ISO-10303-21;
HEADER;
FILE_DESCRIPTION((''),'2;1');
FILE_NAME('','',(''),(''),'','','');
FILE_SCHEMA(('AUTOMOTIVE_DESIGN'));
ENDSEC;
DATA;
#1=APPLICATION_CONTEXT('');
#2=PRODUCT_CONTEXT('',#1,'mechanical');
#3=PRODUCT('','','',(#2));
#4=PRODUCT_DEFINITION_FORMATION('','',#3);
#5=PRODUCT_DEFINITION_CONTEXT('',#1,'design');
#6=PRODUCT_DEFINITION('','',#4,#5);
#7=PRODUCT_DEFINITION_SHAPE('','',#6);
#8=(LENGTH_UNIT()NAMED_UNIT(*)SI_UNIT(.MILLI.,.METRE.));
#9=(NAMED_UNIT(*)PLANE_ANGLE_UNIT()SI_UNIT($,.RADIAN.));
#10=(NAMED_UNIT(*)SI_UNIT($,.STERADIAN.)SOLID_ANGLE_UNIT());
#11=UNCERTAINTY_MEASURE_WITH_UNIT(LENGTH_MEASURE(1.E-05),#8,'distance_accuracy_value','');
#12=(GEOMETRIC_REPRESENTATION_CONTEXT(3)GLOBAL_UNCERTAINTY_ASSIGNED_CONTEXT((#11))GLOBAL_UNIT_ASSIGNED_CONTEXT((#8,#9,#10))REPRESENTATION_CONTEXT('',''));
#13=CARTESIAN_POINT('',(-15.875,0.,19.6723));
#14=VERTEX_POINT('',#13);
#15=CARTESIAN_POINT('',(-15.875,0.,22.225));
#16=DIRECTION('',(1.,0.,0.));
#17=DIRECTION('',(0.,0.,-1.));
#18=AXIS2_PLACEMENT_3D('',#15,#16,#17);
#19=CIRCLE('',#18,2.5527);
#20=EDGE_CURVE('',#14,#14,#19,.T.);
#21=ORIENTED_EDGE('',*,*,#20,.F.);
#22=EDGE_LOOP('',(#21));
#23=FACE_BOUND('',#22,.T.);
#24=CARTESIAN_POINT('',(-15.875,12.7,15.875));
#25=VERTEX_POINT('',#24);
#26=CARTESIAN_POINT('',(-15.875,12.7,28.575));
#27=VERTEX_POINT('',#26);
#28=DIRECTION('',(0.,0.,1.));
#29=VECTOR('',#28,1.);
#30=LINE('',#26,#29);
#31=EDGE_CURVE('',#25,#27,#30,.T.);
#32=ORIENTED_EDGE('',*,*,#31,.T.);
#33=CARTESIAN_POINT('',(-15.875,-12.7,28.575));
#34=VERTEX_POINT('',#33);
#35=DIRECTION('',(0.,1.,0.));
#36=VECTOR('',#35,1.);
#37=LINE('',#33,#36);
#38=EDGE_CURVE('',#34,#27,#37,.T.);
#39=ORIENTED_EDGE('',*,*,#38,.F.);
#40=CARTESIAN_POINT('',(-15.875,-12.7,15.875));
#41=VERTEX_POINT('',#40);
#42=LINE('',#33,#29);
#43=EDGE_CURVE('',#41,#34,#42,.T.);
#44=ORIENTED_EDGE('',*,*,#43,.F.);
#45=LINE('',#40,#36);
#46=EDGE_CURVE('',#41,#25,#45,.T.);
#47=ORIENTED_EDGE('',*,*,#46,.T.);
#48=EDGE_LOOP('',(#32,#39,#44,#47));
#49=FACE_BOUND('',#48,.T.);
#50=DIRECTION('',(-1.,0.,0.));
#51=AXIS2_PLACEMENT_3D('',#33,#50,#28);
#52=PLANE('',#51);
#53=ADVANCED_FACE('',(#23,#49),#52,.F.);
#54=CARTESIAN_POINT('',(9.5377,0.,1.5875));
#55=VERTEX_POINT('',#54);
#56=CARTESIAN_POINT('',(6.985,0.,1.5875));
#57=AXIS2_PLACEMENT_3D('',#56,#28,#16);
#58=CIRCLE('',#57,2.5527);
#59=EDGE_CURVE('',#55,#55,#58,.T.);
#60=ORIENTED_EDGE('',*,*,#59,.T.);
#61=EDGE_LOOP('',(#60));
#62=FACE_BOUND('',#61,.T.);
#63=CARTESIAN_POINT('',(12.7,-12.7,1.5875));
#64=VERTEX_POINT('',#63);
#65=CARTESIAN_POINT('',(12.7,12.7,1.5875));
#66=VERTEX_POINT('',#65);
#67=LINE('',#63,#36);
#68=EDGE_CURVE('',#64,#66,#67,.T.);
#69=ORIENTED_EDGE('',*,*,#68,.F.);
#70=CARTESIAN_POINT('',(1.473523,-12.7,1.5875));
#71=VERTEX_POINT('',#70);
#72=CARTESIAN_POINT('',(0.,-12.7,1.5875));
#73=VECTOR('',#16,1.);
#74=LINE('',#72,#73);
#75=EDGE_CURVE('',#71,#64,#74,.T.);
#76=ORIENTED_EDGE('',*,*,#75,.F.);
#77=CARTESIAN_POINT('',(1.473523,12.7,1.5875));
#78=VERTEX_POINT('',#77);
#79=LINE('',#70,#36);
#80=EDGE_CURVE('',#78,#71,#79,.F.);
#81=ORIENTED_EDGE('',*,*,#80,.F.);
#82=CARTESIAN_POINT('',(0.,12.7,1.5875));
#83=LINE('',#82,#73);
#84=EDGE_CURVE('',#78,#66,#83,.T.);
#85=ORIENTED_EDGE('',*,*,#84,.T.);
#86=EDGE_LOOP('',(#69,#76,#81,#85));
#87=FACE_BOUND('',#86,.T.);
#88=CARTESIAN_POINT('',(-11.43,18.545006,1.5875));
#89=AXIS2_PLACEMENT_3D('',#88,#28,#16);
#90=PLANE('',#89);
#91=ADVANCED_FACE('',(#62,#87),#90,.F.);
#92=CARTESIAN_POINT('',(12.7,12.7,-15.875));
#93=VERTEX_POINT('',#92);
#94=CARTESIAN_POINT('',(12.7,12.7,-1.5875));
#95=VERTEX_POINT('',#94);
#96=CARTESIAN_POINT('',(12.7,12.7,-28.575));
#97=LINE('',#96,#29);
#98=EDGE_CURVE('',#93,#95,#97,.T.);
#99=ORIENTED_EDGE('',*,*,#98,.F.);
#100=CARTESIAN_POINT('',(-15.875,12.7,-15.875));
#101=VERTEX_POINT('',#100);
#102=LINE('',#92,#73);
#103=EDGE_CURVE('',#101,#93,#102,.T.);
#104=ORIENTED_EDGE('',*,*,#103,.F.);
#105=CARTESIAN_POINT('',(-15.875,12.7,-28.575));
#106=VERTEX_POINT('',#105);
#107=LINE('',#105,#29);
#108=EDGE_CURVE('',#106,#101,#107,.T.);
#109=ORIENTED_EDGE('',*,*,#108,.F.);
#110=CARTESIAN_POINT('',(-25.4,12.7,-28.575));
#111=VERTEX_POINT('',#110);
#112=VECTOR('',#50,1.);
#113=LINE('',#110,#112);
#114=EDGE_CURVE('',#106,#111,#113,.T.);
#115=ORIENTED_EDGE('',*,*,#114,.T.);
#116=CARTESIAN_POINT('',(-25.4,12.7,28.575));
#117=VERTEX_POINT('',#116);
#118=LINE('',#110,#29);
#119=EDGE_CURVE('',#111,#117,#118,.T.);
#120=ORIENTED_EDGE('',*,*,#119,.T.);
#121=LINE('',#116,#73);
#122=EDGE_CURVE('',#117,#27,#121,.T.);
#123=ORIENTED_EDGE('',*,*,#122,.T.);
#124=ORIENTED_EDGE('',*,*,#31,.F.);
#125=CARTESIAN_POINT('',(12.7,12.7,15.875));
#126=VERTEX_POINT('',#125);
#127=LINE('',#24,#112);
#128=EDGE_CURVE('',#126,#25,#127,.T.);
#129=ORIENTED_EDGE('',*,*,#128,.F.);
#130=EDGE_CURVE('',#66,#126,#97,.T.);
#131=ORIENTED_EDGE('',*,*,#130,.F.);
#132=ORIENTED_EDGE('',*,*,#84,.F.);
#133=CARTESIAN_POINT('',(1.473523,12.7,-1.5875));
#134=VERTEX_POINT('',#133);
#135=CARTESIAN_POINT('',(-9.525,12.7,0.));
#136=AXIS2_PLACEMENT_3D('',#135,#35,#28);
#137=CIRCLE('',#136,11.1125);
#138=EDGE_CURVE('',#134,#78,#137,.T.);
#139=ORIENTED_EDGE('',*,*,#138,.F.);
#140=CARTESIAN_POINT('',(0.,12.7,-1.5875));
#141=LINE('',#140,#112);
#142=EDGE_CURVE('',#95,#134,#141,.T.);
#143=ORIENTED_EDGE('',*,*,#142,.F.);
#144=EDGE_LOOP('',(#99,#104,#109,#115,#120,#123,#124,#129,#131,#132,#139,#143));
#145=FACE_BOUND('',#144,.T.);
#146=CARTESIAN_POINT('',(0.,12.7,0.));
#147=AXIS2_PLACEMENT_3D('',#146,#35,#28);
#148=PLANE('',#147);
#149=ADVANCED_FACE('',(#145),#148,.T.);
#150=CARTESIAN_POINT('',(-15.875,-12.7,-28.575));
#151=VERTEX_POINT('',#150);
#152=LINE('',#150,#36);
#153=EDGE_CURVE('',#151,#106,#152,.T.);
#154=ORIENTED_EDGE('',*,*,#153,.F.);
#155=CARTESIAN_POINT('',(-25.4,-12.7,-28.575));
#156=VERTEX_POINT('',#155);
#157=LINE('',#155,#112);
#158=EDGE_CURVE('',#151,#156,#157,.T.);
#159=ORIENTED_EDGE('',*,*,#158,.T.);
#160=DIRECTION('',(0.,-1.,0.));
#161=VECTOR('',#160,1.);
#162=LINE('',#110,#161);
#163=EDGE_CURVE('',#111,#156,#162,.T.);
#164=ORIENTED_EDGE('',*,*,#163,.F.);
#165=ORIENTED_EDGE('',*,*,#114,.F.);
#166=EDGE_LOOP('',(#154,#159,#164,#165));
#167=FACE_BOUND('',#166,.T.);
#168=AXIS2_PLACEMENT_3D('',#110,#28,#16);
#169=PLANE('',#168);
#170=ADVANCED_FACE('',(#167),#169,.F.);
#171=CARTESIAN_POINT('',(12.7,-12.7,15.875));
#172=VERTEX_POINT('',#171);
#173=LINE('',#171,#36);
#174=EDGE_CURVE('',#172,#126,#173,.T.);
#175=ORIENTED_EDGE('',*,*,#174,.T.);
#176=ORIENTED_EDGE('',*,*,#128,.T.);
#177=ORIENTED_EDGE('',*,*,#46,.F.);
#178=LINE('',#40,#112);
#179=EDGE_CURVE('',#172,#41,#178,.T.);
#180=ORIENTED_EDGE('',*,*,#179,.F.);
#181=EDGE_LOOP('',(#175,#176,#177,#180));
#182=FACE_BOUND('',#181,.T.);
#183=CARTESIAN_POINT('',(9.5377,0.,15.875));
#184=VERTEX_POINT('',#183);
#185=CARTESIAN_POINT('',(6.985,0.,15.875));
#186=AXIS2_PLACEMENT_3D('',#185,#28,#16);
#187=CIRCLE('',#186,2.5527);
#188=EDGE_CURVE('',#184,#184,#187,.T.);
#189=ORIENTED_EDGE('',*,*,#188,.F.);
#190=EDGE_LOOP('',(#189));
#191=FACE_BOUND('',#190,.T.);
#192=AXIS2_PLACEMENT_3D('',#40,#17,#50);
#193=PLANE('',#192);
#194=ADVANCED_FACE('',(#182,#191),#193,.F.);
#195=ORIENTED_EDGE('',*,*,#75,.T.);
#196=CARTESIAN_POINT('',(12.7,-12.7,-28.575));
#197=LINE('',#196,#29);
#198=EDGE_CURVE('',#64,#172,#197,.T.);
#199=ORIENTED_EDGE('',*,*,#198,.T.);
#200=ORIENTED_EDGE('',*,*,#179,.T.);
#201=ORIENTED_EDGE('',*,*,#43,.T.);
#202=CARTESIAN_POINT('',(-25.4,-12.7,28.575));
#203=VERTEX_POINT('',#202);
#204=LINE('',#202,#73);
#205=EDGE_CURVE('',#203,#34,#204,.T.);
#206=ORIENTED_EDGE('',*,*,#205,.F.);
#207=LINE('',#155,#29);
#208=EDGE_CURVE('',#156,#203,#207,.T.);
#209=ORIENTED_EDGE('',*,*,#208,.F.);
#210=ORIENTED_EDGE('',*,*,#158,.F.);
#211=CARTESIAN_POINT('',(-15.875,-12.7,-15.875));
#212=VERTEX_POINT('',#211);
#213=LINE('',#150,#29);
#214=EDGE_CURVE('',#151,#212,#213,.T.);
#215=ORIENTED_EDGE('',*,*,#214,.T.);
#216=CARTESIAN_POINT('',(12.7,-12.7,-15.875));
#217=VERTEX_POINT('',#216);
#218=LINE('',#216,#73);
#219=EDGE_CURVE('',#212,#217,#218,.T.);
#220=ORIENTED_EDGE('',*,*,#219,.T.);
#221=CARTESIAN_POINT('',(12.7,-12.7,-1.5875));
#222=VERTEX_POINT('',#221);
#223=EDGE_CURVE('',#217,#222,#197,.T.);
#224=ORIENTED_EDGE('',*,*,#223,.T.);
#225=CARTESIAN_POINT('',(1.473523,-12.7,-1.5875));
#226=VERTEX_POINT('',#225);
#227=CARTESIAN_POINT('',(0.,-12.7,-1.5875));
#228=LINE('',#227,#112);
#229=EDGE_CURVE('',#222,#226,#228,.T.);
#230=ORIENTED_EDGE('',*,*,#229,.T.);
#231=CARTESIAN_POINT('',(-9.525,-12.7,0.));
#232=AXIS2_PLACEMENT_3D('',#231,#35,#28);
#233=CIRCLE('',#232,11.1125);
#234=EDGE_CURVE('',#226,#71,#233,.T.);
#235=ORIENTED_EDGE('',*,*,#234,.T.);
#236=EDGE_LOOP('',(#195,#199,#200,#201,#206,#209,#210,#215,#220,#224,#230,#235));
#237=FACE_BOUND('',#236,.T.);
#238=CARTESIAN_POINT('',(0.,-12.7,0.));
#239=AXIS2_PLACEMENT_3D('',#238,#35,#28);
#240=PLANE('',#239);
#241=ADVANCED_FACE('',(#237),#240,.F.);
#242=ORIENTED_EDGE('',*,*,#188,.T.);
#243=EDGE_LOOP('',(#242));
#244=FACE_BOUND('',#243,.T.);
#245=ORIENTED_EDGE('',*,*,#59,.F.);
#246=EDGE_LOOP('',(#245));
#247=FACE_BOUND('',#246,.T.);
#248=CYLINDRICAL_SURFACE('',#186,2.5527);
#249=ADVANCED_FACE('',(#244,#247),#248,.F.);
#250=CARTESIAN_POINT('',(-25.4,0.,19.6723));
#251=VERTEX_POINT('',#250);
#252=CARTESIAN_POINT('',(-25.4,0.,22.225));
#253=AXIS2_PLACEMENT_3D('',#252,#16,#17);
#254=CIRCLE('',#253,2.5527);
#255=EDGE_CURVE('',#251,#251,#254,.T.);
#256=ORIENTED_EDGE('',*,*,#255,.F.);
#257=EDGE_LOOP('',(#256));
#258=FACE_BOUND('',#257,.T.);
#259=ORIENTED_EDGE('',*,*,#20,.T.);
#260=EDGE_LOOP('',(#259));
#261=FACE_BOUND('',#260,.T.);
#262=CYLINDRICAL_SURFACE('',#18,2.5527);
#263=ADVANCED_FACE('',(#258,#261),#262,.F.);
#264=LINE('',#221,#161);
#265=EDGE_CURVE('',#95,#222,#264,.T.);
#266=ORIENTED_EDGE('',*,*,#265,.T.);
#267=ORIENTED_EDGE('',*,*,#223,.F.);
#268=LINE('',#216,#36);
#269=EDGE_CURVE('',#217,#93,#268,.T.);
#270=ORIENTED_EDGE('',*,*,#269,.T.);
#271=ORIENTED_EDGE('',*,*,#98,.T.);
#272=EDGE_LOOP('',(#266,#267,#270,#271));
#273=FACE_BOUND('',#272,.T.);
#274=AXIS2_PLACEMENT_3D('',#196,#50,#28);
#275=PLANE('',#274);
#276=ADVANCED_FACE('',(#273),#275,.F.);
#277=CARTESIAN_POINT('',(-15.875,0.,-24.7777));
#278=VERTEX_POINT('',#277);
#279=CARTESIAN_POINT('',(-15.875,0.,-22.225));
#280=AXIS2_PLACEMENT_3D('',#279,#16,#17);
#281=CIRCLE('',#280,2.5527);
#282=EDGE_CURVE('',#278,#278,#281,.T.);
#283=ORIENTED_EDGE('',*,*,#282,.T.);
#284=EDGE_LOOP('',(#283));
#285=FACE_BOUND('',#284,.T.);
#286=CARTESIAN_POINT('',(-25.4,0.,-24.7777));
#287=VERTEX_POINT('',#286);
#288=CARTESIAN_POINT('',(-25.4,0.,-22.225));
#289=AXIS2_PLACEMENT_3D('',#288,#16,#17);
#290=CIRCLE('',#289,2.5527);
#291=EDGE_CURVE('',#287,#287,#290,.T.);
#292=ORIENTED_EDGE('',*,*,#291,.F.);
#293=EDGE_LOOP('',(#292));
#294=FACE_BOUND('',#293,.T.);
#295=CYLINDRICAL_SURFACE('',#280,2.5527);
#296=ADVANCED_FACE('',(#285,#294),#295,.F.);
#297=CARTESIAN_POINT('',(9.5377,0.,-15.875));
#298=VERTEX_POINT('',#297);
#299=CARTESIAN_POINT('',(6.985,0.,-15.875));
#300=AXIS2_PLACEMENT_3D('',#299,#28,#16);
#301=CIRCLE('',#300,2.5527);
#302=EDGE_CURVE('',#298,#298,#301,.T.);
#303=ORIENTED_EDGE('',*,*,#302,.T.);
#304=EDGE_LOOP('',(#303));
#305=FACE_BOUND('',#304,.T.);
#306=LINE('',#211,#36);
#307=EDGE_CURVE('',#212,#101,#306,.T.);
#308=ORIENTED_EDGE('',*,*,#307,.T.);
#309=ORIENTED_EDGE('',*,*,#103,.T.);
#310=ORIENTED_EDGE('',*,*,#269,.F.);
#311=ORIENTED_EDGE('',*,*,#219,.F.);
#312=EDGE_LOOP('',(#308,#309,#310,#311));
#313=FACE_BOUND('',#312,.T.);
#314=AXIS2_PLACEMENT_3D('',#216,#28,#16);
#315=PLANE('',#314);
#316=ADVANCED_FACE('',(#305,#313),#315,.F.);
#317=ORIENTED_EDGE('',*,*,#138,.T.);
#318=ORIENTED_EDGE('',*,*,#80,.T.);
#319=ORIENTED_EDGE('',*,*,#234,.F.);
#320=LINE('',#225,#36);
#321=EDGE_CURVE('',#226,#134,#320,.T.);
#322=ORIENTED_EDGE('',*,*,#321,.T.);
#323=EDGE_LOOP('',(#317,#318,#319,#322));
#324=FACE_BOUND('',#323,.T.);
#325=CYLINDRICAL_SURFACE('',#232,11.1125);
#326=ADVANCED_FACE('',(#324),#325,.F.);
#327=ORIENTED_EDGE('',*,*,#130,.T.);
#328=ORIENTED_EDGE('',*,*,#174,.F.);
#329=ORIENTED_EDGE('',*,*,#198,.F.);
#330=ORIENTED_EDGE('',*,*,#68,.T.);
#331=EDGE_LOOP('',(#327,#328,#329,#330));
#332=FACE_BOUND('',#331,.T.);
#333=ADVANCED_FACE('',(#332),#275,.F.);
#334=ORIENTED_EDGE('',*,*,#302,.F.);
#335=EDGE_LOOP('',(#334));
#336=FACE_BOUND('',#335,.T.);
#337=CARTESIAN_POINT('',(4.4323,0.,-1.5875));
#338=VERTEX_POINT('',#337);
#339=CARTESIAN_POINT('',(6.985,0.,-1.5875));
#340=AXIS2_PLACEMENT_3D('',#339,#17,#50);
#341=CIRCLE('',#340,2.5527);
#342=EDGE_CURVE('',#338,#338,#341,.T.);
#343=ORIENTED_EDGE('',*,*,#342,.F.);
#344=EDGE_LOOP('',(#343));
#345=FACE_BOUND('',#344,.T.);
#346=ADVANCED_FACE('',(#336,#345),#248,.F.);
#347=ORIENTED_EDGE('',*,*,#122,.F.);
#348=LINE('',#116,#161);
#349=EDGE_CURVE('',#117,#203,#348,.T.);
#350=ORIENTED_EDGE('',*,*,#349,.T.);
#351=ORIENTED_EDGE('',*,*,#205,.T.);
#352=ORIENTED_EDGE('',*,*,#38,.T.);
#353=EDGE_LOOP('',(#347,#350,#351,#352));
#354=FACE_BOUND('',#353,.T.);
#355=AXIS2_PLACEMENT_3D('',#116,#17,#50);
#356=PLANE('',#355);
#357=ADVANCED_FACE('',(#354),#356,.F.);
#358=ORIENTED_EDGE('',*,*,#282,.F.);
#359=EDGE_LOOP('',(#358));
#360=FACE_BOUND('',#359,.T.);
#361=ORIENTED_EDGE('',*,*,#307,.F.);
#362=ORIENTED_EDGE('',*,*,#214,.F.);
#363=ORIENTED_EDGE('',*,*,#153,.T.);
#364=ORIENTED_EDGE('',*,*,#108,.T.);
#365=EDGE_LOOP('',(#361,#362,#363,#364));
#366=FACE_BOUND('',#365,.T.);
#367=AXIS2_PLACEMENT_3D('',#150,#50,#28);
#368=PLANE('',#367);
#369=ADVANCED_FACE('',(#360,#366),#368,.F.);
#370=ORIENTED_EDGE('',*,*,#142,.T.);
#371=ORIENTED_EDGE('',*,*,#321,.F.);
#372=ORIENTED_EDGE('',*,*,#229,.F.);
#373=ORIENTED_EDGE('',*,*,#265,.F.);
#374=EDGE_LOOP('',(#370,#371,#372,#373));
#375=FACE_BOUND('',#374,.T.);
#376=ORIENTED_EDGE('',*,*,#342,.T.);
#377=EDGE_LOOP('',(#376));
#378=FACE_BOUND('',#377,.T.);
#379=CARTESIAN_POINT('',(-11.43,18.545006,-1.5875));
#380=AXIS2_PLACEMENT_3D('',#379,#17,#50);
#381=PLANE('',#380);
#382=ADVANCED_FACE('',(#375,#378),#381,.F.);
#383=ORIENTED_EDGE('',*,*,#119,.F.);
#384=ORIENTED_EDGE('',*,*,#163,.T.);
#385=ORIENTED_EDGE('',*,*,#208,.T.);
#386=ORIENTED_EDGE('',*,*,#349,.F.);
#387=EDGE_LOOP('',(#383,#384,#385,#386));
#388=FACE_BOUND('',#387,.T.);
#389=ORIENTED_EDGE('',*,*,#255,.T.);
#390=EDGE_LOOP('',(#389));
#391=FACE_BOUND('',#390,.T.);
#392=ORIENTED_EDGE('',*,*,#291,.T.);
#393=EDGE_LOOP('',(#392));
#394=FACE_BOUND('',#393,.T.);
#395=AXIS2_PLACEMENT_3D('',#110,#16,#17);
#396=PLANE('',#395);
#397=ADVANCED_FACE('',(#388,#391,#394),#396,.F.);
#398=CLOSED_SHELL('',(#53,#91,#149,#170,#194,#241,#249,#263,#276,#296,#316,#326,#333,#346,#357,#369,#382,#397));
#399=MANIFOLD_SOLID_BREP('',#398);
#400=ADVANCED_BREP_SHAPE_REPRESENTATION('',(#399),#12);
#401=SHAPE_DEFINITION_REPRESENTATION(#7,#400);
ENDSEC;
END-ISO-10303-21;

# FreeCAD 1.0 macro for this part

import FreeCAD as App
import Part
import Sketcher

V = App.Vector
Q = App.Units.Quantity


def add_polygon(sketch, points):
    """Adds a closed chain of lines whose ends are joined by coincident constraints."""
    first, n = sketch.GeometryCount, len(points)
    for a, b in zip(points, points[1:] + points[:1]):
        sketch.addGeometry(Part.LineSegment(App.Vector(*a, 0), App.Vector(*b, 0)), False)
    for i in range(n):
        sketch.addConstraint(Sketcher.Constraint("Coincident", first + i, 2, first + (i + 1) % n, 1))

doc = App.newDocument("Part")
body = doc.addObject("PartDesign::Body", "Body")

sketch1 = body.newObject("Sketcher::SketchObject", "Sketch")
sketch1.AttachmentSupport = (doc.getObject("XZ_Plane"), [""])
sketch1.MapMode = "FlatFace"
add_polygon(sketch1, [(-25, -29), (-25, 29), (25, 29), (25, -29)])
sketch1.addConstraint(Sketcher.Constraint("Vertical", 0))
sketch1.addConstraint(Sketcher.Constraint("Horizontal", 1))
sketch1.addConstraint(Sketcher.Constraint("Vertical", 2))
sketch1.addConstraint(Sketcher.Constraint("Horizontal", 3))
sketch1.addConstraint(Sketcher.Constraint("Symmetric", 0, 2, 2, 2, -1, 1))
sketch1.addConstraint(Sketcher.Constraint("DistanceX", 1, 1, 1, 2, Q("2 in")))
sketch1.addConstraint(Sketcher.Constraint("DistanceY", 0, 1, 0, 2, Q("2.25 in")))
pad1 = body.newObject("PartDesign::Pad", "Pad")
pad1.Profile = sketch1
pad1.Length = Q("1 in")
pad1.Midplane = True

sketch2 = body.newObject("Sketcher::SketchObject", "Sketch001")
sketch2.AttachmentSupport = (doc.getObject("XZ_Plane"), [""])
sketch2.MapMode = "FlatFace"
sketch2.AttachmentOffset = App.Placement(V(0, 0, -0.5 * 25.4), App.Rotation())
sketch2.addGeometry(Part.Circle(V(-10, 0, 0), V(0, 0, 1), 11), False)
sketch2.addConstraint(Sketcher.Constraint("PointOnObject", 0, 3, -1))
sketch2.addConstraint(Sketcher.Constraint("Diameter", 0, Q("0.875 in")))
sketch2.addConstraint(Sketcher.Constraint("DistanceX", 0, 3, -1, 1, Q("0.375 in")))
pocket1 = body.newObject("PartDesign::Pocket", "Pocket")
pocket1.Profile = sketch2
pocket1.Type = "ThroughAll"
pocket1.Reversed = True

sketch3 = body.newObject("Sketcher::SketchObject", "Sketch002")
sketch3.AttachmentSupport = (doc.getObject("XZ_Plane"), [""])
sketch3.MapMode = "FlatFace"
sketch3.AttachmentOffset = App.Placement(V(0, 0, -0.5 * 25.4), App.Rotation())
add_polygon(sketch3, [(13, -29), (13, 29), (25, 29), (25, -29)])
sketch3.addConstraint(Sketcher.Constraint("Vertical", 0))
sketch3.addConstraint(Sketcher.Constraint("Horizontal", 1))
sketch3.addConstraint(Sketcher.Constraint("Vertical", 2))
sketch3.addConstraint(Sketcher.Constraint("Horizontal", 3))
sketch3.addConstraint(Sketcher.Constraint("DistanceX", 1, 1, 1, 2, Q("0.5 in")))
sketch3.addConstraint(Sketcher.Constraint("DistanceX", -1, 1, 1, 2, Q("1 in")))
sketch3.addConstraint(Sketcher.Constraint("DistanceY", 0, 1, 0, 2, Q("2.25 in")))
sketch3.addConstraint(Sketcher.Constraint("DistanceY", -1, 1, 0, 2, Q("1.125 in")))
pocket2 = body.newObject("PartDesign::Pocket", "Pocket001")
pocket2.Profile = sketch3
pocket2.Type = "ThroughAll"
pocket2.Reversed = True

sketch4 = body.newObject("Sketcher::SketchObject", "Sketch003")
sketch4.AttachmentSupport = (doc.getObject("XZ_Plane"), [""])
sketch4.MapMode = "FlatFace"
sketch4.AttachmentOffset = App.Placement(V(0, 0, -0.5 * 25.4), App.Rotation())
add_polygon(sketch4, [(-16, -29), (-16, -16), (13, -16), (13, -29)])
add_polygon(sketch4, [(-16, 16), (-16, 29), (13, 29), (13, 16)])
sketch4.addConstraint(Sketcher.Constraint("Vertical", 0))
sketch4.addConstraint(Sketcher.Constraint("Horizontal", 1))
sketch4.addConstraint(Sketcher.Constraint("Vertical", 2))
sketch4.addConstraint(Sketcher.Constraint("Horizontal", 3))
sketch4.addConstraint(Sketcher.Constraint("Vertical", 4))
sketch4.addConstraint(Sketcher.Constraint("Horizontal", 5))
sketch4.addConstraint(Sketcher.Constraint("Vertical", 6))
sketch4.addConstraint(Sketcher.Constraint("Horizontal", 7))
sketch4.addConstraint(Sketcher.Constraint("Symmetric", 3, 2, 4, 2, -1))
sketch4.addConstraint(Sketcher.Constraint("Symmetric", 1, 2, 6, 2, -1))
sketch4.addConstraint(Sketcher.Constraint("DistanceY", 0, 1, 0, 2, Q("0.5 in")))
sketch4.addConstraint(Sketcher.Constraint("DistanceX", -1, 1, 1, 2, Q("0.5 in")))
sketch4.addConstraint(Sketcher.Constraint("DistanceX", 1, 1, 1, 2, Q("1.125 in")))
sketch4.addConstraint(Sketcher.Constraint("DistanceY", 0, 2, 4, 2, Q("1.75 in")))
pocket3 = body.newObject("PartDesign::Pocket", "Pocket002")
pocket3.Profile = sketch4
pocket3.Type = "ThroughAll"
pocket3.Reversed = True

sketch5 = body.newObject("Sketcher::SketchObject", "Sketch004")
sketch5.AttachmentSupport = (doc.getObject("YZ_Plane"), [""])
sketch5.MapMode = "FlatFace"
sketch5.AttachmentOffset = App.Placement(V(0, 0, -0.625 * 25.4), App.Rotation())
sketch5.addGeometry(Part.Circle(V(0, -22.2, 0), V(0, 0, 1), 2.6), False)
sketch5.addGeometry(Part.Circle(V(0, 22.2, 0), V(0, 0, 1), 2.6), False)
sketch5.addConstraint(Sketcher.Constraint("Equal", 0, 1))
sketch5.addConstraint(Sketcher.Constraint("Symmetric", 0, 3, 1, 3, -1, 1))
sketch5.addConstraint(Sketcher.Constraint("PointOnObject", 0, 3, -2))
sketch5.addConstraint(Sketcher.Constraint("Diameter", 0, Q("0.201 in")))
sketch5.addConstraint(Sketcher.Constraint("DistanceY", 0, 3, 1, 3, Q("1.75 in")))
doc.recompute()
hole = body.newObject("PartDesign::Hole", "Hole")
hole.Profile = sketch5
hole.ThreadType = "None"
hole.Diameter = Q("0.201 in")
hole.DepthType = "ThroughAll"

sketch6 = body.newObject("Sketcher::SketchObject", "Sketch005")
sketch6.AttachmentSupport = (doc.getObject("YZ_Plane"), [""])
sketch6.MapMode = "FlatFace"
sketch6.AttachmentOffset = App.Placement(V(0, 0, 0.5 * 25.4), App.Rotation())
add_polygon(sketch6, [(18.5, 1.6), (-18.5, 1.6), (-18.5, -1.6), (18.5, -1.6)])
sketch6.addConstraint(Sketcher.Constraint("Horizontal", 0))
sketch6.addConstraint(Sketcher.Constraint("Vertical", 1))
sketch6.addConstraint(Sketcher.Constraint("Horizontal", 2))
sketch6.addConstraint(Sketcher.Constraint("Vertical", 3))
sketch6.addConstraint(Sketcher.Constraint("Symmetric", 0, 2, 2, 2, -1, 1))
sketch6.addConstraint(Sketcher.Constraint("DistanceY", 1, 2, 1, 1, Q("0.125 in")))
sketch6.addConstraint(Sketcher.Constraint("DistanceX", 0, 2, 0, 1, 37.090013))
pocket4 = body.newObject("PartDesign::Pocket", "Pocket003")
pocket4.Profile = sketch6
pocket4.Length = Q("0.95 in")

sketch7 = body.newObject("Sketcher::SketchObject", "Sketch006")
sketch7.AttachmentSupport = (doc.getObject("XY_Plane"), [""])
sketch7.MapMode = "FlatFace"
sketch7.AttachmentOffset = App.Placement(V(0, 0, 0.625 * 25.4), App.Rotation())
sketch7.addGeometry(Part.Circle(V(7, 0, 0), V(0, 0, 1), 2.6), False)
sketch7.addConstraint(Sketcher.Constraint("PointOnObject", 0, 3, -1))
sketch7.addConstraint(Sketcher.Constraint("Diameter", 0, Q("0.201 in")))
sketch7.addConstraint(Sketcher.Constraint("DistanceX", -1, 1, 0, 3, Q("0.275 in")))
doc.recompute()
hole2 = body.newObject("PartDesign::Hole", "Hole001")
hole2.Profile = sketch7
hole2.ThreadType = "None"
hole2.Diameter = Q("0.201 in")
hole2.DepthType = "ThroughAll"

doc.recompute()
